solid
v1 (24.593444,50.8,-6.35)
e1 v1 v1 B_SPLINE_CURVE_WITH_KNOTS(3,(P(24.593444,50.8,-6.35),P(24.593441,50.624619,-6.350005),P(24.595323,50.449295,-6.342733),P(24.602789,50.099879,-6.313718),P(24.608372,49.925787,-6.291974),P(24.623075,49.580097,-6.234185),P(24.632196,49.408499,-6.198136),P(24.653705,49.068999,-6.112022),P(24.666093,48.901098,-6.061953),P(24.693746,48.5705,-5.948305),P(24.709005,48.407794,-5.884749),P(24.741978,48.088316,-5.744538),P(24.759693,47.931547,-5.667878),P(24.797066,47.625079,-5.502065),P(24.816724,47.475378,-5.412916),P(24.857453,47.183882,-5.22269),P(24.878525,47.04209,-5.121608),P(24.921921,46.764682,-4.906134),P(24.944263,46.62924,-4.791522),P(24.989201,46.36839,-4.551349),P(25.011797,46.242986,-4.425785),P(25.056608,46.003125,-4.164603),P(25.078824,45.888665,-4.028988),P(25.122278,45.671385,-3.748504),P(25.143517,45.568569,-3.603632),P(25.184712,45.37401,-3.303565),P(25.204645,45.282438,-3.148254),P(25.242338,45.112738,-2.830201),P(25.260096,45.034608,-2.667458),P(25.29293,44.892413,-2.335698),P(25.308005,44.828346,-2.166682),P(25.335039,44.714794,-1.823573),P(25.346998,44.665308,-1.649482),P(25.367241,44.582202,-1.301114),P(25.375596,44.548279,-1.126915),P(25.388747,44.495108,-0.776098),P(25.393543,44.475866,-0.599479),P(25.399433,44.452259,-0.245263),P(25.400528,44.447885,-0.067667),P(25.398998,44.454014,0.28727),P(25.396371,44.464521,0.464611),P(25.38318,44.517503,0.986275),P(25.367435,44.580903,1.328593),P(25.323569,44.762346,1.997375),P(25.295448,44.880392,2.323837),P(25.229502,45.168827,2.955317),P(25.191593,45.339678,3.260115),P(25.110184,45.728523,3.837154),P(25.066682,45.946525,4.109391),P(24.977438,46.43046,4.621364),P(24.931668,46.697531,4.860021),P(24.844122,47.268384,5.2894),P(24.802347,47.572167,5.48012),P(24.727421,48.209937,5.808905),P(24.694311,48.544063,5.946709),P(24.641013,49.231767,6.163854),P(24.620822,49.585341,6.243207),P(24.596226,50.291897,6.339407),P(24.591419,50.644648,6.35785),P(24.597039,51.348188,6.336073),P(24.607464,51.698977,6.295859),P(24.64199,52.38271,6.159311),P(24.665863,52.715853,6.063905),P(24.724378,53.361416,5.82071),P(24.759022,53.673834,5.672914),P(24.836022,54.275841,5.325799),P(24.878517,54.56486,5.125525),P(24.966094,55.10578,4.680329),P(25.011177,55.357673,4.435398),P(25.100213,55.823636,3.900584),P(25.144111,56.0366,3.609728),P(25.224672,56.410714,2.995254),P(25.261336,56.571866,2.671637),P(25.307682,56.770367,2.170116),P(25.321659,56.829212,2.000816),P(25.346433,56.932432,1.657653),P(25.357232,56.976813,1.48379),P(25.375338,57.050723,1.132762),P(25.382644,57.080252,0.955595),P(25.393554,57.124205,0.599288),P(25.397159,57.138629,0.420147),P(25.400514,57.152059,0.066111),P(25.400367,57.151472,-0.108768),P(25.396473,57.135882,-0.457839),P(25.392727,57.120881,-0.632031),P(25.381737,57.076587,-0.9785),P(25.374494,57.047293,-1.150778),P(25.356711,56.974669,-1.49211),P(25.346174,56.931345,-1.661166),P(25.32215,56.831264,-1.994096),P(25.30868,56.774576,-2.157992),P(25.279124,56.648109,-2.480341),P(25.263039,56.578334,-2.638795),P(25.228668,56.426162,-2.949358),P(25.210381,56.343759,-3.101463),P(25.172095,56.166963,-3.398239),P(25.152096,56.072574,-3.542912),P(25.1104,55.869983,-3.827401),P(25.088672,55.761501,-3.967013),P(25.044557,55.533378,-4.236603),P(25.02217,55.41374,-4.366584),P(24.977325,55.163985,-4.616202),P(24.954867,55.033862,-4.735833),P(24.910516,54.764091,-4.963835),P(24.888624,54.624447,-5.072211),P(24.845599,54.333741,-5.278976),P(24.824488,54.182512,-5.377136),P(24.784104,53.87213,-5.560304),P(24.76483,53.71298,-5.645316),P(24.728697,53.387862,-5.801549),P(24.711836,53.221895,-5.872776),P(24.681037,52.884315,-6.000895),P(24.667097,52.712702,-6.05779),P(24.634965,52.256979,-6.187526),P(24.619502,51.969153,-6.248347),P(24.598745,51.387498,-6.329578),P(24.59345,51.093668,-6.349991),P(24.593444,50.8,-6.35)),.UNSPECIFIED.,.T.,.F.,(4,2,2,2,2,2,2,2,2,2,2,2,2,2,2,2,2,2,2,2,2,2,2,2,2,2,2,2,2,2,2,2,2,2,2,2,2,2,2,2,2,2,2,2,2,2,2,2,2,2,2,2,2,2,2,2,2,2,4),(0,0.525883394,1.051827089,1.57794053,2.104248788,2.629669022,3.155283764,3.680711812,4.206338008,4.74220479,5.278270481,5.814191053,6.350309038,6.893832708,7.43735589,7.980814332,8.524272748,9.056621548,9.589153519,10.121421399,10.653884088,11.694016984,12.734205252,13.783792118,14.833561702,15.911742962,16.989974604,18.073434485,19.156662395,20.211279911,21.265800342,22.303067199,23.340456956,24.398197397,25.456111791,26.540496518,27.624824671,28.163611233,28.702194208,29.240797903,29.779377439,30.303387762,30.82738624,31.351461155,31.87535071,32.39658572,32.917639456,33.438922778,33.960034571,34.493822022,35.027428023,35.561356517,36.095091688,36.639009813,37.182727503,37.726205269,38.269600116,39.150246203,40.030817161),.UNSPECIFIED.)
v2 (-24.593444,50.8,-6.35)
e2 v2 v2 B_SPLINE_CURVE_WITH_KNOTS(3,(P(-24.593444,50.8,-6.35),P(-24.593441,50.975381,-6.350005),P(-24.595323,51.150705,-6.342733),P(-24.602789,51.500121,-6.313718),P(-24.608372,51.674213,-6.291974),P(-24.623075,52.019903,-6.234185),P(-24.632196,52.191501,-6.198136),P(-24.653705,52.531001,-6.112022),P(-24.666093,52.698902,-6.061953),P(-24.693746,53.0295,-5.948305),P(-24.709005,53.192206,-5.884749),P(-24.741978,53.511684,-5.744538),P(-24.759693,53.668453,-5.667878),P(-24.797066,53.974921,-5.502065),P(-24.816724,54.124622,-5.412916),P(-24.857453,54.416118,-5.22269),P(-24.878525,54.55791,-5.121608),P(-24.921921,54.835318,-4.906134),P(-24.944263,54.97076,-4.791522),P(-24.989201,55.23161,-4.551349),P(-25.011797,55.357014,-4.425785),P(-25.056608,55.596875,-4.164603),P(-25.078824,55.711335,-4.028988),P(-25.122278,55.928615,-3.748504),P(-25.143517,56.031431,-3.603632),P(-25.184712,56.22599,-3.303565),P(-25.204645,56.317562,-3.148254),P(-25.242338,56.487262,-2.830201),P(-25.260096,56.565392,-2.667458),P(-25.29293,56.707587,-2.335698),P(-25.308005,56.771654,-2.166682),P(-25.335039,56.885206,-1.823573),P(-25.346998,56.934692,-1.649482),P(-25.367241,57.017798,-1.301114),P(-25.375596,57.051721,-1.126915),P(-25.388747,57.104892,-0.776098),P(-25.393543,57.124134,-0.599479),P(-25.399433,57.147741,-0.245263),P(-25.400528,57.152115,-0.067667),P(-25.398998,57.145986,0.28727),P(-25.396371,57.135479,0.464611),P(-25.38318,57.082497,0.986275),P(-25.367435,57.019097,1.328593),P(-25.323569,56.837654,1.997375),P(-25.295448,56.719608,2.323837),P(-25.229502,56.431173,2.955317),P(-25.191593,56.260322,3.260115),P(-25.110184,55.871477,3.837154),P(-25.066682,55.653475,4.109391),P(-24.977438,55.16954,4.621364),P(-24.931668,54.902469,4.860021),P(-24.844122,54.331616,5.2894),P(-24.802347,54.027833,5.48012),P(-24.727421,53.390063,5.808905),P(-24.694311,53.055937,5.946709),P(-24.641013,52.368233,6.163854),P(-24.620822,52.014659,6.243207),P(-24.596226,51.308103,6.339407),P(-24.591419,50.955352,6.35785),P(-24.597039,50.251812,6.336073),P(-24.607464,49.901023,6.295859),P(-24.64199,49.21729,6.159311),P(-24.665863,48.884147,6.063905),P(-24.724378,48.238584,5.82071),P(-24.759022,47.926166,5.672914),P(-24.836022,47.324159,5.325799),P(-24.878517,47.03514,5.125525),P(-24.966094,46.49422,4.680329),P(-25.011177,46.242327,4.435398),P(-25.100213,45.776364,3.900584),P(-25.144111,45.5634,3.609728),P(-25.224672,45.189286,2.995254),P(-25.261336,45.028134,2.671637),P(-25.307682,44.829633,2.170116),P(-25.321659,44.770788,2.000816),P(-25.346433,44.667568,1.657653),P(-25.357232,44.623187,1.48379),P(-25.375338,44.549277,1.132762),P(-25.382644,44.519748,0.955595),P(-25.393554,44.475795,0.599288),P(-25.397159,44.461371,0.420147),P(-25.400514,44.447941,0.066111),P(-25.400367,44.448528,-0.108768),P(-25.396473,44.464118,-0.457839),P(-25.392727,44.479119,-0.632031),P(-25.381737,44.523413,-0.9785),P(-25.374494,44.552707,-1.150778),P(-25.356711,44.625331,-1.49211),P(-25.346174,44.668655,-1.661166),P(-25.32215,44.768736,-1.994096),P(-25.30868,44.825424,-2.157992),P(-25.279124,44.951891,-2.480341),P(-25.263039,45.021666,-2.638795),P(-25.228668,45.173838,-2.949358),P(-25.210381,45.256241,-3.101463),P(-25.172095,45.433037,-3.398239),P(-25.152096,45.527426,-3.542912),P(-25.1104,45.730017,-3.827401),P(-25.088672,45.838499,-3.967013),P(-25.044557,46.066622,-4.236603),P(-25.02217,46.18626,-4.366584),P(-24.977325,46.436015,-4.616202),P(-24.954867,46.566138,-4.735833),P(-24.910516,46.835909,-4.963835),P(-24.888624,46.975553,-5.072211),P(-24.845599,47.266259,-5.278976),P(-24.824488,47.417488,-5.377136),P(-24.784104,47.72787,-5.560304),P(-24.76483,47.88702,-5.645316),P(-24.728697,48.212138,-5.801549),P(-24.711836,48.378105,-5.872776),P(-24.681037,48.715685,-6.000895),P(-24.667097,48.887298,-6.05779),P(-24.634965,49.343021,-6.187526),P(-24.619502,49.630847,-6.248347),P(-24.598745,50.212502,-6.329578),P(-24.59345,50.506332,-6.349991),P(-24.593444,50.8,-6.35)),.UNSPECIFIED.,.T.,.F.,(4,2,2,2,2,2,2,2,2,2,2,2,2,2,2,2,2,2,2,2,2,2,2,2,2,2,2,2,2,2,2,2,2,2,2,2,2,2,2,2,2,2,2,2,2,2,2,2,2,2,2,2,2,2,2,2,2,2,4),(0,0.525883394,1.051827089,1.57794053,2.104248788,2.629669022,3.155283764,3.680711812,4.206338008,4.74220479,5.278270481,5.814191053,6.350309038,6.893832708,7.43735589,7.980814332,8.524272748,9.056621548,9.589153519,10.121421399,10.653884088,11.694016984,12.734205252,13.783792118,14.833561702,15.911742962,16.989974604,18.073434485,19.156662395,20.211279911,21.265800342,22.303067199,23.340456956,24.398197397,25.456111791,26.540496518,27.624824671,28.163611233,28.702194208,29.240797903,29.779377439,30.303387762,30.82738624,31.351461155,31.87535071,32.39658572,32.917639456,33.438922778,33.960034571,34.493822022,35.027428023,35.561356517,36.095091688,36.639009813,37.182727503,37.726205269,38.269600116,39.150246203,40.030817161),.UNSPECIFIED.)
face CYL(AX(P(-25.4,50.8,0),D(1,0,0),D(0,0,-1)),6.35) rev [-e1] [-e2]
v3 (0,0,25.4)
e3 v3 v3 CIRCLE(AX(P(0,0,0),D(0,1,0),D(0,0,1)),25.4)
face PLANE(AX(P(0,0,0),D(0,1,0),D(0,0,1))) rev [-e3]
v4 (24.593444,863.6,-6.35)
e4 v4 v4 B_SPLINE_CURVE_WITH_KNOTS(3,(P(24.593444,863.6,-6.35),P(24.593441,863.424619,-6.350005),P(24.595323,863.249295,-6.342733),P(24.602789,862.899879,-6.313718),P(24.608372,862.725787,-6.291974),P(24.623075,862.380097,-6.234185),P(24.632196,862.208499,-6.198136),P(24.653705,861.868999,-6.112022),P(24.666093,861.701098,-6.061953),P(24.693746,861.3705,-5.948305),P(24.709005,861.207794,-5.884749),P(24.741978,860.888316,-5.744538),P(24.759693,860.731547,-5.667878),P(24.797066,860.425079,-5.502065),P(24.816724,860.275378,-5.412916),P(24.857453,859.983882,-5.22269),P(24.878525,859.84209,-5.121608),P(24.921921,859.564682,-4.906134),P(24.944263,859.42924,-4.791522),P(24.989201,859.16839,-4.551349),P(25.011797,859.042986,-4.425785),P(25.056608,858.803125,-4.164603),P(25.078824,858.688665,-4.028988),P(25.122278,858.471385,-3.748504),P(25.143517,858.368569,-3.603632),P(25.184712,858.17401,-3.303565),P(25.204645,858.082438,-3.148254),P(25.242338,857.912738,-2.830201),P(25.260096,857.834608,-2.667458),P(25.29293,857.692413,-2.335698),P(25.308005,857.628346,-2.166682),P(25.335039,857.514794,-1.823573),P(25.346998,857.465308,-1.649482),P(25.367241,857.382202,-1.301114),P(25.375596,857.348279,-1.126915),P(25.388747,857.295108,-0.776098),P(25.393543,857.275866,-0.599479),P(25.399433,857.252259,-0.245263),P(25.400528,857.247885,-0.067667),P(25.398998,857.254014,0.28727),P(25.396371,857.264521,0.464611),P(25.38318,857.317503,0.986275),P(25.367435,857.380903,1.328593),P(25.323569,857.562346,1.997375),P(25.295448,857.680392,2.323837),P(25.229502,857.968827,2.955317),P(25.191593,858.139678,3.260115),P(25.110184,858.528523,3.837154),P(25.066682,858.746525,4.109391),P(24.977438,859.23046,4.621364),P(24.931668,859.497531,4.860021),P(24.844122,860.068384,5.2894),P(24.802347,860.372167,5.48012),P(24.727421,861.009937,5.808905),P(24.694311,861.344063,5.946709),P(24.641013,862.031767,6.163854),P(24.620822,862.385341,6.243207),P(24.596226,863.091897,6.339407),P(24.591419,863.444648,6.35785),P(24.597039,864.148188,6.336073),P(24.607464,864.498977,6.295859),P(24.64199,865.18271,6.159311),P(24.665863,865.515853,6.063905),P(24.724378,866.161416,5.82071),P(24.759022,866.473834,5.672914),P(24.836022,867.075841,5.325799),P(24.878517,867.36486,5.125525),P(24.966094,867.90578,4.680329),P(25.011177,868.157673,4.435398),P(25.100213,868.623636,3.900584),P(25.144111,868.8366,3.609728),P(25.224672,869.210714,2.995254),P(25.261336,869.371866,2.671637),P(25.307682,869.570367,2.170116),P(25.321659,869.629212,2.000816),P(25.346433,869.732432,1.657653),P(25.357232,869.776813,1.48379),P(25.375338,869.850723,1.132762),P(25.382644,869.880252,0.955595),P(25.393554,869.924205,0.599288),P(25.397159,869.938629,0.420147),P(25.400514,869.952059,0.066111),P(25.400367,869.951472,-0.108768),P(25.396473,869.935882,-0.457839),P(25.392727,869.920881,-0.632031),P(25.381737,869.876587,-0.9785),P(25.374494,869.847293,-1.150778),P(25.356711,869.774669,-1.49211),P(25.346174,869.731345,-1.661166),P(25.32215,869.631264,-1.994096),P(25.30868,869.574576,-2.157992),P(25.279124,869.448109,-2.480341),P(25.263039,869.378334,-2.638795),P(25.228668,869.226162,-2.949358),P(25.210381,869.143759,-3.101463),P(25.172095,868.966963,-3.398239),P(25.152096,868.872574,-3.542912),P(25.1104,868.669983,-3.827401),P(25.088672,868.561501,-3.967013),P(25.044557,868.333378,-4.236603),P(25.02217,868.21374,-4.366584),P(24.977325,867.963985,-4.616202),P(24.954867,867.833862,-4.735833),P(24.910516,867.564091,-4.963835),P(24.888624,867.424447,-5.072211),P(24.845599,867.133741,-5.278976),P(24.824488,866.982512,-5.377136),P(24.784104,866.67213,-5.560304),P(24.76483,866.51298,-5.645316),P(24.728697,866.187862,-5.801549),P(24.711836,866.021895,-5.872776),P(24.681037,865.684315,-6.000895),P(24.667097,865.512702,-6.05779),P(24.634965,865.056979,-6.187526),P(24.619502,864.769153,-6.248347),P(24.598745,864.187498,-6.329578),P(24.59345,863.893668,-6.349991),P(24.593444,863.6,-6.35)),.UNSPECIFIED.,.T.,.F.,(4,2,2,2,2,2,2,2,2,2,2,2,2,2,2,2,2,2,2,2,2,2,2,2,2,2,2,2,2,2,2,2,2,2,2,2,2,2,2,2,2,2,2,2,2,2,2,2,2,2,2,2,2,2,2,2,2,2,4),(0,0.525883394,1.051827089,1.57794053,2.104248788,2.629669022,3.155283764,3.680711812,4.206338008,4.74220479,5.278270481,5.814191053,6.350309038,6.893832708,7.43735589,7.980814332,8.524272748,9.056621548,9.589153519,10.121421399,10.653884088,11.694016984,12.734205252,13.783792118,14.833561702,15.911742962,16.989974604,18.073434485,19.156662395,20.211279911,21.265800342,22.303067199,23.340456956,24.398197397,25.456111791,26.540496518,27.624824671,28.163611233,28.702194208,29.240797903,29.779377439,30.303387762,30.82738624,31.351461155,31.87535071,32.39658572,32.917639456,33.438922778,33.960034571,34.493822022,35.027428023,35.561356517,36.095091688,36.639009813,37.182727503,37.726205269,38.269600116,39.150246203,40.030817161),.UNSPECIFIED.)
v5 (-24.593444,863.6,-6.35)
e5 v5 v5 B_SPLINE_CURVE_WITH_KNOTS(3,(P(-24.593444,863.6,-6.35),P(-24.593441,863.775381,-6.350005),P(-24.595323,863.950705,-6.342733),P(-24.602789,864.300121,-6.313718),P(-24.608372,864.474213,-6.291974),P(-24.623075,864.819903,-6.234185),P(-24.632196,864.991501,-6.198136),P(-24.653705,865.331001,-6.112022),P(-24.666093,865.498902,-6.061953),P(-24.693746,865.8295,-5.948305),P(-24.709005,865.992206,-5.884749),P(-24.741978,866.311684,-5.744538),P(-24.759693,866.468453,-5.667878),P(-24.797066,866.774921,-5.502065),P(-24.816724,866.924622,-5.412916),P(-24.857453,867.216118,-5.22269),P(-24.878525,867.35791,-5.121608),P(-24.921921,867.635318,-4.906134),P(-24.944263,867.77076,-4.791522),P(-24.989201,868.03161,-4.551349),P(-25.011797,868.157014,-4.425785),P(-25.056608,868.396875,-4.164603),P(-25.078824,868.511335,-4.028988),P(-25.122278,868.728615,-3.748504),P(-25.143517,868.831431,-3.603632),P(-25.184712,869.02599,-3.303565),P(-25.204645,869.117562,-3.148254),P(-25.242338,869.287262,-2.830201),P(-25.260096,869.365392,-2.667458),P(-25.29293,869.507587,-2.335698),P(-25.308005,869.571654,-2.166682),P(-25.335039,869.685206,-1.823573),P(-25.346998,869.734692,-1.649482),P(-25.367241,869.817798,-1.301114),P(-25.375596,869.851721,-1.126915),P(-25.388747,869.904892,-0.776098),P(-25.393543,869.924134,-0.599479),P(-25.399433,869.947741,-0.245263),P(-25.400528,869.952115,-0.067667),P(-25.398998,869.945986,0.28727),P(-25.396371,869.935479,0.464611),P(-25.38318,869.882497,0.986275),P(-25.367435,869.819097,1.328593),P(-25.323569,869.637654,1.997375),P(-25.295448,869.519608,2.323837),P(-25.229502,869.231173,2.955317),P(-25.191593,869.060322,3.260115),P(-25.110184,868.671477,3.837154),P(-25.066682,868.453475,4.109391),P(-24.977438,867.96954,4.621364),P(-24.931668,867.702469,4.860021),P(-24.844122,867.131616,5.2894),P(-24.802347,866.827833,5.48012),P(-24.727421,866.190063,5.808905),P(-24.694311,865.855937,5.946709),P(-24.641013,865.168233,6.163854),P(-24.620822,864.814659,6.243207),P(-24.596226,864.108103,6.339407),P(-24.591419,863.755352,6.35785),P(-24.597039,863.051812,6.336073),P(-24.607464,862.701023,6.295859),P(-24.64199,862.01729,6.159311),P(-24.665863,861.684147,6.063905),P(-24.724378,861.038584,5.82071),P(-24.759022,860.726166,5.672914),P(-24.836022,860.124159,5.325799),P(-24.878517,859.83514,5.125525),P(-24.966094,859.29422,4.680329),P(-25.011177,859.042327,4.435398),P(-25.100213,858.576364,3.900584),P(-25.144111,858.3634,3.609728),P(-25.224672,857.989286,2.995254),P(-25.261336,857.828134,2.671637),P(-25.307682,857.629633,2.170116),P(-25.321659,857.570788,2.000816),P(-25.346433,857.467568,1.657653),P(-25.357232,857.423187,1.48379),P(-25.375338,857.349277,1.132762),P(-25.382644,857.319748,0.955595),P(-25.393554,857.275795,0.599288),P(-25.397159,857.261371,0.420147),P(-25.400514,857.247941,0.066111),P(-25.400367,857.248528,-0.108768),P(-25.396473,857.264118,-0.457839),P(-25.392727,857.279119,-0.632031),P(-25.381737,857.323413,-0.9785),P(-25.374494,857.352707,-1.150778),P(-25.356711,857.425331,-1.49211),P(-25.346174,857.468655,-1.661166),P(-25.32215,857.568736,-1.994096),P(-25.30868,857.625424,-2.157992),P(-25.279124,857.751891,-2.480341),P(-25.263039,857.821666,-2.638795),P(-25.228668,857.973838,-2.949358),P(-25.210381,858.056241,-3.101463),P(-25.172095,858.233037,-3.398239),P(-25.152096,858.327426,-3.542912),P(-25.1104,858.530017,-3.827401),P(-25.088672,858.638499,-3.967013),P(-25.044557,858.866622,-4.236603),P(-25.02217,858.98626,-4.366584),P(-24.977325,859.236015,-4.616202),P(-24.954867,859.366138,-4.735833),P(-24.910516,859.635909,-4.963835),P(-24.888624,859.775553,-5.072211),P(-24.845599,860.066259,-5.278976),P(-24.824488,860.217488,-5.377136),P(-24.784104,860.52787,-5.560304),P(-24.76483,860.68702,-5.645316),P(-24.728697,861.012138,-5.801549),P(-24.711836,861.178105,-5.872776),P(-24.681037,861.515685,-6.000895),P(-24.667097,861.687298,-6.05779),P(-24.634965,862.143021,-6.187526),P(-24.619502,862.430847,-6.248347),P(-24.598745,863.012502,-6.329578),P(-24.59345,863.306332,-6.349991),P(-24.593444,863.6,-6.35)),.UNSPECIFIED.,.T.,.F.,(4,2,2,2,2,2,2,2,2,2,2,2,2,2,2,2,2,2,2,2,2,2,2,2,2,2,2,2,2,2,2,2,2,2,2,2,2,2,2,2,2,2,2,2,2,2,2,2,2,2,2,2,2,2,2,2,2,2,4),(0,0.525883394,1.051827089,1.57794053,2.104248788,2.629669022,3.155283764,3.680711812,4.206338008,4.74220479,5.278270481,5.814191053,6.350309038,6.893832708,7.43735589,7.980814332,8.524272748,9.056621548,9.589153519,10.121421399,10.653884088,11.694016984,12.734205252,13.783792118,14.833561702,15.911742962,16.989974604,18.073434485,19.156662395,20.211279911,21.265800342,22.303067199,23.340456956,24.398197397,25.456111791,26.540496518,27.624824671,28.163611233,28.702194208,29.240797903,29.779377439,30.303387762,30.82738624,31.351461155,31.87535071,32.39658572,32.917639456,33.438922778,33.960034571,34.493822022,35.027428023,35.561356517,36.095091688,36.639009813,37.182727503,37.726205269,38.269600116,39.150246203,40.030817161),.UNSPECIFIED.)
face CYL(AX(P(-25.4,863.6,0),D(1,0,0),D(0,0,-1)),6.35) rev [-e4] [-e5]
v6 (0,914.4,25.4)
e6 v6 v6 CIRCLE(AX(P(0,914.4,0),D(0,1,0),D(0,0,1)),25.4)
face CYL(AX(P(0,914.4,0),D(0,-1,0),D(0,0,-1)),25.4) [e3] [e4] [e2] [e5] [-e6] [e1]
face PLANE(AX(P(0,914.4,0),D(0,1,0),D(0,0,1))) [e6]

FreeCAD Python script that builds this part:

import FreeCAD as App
import Part
import Sketcher
from FreeCAD import Vector
Q = App.Units.Quantity

doc = App.newDocument("Part")
body = doc.addObject("PartDesign::Body", "Body")

# Sketch on XZ plane
sketch1 = body.newObject("Sketcher::SketchObject", "Sketch")
sketch1.AttachmentSupport = (doc.getObject("XZ_Plane"), [""])
sketch1.MapMode = "FlatFace"
sketch1.addGeometry(Part.Circle(Vector(0, 0, 0), Vector(0, 0, 1), 25.4), False)
sketch1.addConstraint([
    Sketcher.Constraint("Coincident", 0, 3, -1, 1),
    Sketcher.Constraint("Diameter", 0, Q("2 in")),
])
pad1 = body.newObject("PartDesign::Pad", "Pad")
pad1.Profile = sketch1
pad1.Length = Q("36 in")
pad1.Reversed = True

# Sketch on YZ plane
sketch2 = body.newObject("Sketcher::SketchObject", "Sketch001")
sketch2.AttachmentSupport = (doc.getObject("YZ_Plane"), [""])
sketch2.MapMode = "FlatFace"
sketch2.addGeometry([
    Part.Circle(Vector(863.6, 0, 0), Vector(0, 0, 1), 6.35),
    Part.Circle(Vector(50.8, 0, 0), Vector(0, 0, 1), 6.35),
], False)
sketch2.addConstraint([
    Sketcher.Constraint("Equal", 0, 1),
    Sketcher.Constraint("PointOnObject", 0, 3, -1),
    Sketcher.Constraint("PointOnObject", 1, 3, -1),
    Sketcher.Constraint("Diameter", 0, Q("0.5 in")),
    Sketcher.Constraint("DistanceX", -1, 1, 0, 3, Q("34 in")),
    Sketcher.Constraint("DistanceX", -1, 1, 1, 3, Q("2 in")),
])
pocket1 = body.newObject("PartDesign::Pocket", "Pocket")
pocket1.Profile = sketch2
pocket1.Type = "ThroughAll"
pocket1.Midplane = True

doc.recompute()
